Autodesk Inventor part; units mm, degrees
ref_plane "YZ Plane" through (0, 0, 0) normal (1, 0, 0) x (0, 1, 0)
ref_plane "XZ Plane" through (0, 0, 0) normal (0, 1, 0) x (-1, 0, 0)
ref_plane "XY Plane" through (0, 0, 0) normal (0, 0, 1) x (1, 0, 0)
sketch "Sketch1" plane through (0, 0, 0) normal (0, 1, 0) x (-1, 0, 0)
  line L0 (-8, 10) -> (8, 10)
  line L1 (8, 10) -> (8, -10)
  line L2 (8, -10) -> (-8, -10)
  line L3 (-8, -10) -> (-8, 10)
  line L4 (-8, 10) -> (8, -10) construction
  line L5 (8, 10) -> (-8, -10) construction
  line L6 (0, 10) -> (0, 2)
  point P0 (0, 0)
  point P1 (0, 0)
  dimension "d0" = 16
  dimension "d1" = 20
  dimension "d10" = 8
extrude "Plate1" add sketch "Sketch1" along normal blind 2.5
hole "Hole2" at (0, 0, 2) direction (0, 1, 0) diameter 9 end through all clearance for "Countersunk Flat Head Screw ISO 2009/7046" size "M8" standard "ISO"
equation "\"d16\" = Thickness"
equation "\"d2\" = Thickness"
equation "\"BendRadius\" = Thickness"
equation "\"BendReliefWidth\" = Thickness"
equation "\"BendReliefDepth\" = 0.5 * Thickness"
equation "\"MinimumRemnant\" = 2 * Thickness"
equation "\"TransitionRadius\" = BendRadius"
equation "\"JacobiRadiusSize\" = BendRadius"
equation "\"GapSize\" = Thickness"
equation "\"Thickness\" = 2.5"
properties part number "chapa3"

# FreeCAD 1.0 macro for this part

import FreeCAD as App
import Part
import Sketcher
Q = App.Units.Quantity

doc = App.newDocument("Part")
body = doc.addObject("PartDesign::Body", "Body")

# Sketch on XZ plane
sketch1 = body.newObject("Sketcher::SketchObject", "Sketch")
sketch1.AttachmentSupport = (doc.getObject("XZ_Plane"), [""])
sketch1.MapMode = "FlatFace"
sketch1.addGeometry([
    Part.LineSegment(App.Vector(-8, 10, 0), App.Vector(8, 10, 0)),
    Part.LineSegment(App.Vector(8, 10, 0), App.Vector(8, -10, 0)),
    Part.LineSegment(App.Vector(8, -10, 0), App.Vector(-8, -10, 0)),
    Part.LineSegment(App.Vector(-8, -10, 0), App.Vector(-8, 10, 0)),
], False)
sketch1.addConstraint([
    Sketcher.Constraint("Coincident", 0, 2, 1, 1),
    Sketcher.Constraint("Coincident", 1, 2, 2, 1),
    Sketcher.Constraint("Coincident", 2, 2, 3, 1),
    Sketcher.Constraint("Coincident", 3, 2, 0, 1),
    Sketcher.Constraint("Horizontal", 0),
    Sketcher.Constraint("Vertical", 1),
    Sketcher.Constraint("Horizontal", 2),
    Sketcher.Constraint("Vertical", 3),
    Sketcher.Constraint("Symmetric", 0, 2, 2, 2, -1, 1),
    Sketcher.Constraint("DistanceX", 0, 1, 0, 2, Q("16 mm")),
    Sketcher.Constraint("DistanceY", 1, 2, 1, 1, Q("20 mm")),
])
pad1 = body.newObject("PartDesign::Pad", "Pad")
pad1.Profile = sketch1
pad1.Length = 2.5
pad1.Reversed = True

# Sketch on XZ plane
sketch2 = body.newObject("Sketcher::SketchObject", "Sketch001")
sketch2.AttachmentSupport = (doc.getObject("XZ_Plane"), [""])
sketch2.MapMode = "FlatFace"
sketch2.addGeometry(Part.Circle(App.Vector(0, 2, 0), App.Vector(0, 0, 1), 4.5), False)
sketch2.addConstraint([
    Sketcher.Constraint("PointOnObject", 0, 3, -2),
    Sketcher.Constraint("Diameter", 0, Q("9 mm")),
    Sketcher.Constraint("DistanceY", -1, 1, 0, 3, Q("2 mm")),
])
doc.recompute()
hole = body.newObject("PartDesign::Hole", "Hole")
hole.Profile = sketch2
hole.ThreadType = "None"
hole.Diameter = 9
hole.DepthType = "ThroughAll"

doc.recompute()
